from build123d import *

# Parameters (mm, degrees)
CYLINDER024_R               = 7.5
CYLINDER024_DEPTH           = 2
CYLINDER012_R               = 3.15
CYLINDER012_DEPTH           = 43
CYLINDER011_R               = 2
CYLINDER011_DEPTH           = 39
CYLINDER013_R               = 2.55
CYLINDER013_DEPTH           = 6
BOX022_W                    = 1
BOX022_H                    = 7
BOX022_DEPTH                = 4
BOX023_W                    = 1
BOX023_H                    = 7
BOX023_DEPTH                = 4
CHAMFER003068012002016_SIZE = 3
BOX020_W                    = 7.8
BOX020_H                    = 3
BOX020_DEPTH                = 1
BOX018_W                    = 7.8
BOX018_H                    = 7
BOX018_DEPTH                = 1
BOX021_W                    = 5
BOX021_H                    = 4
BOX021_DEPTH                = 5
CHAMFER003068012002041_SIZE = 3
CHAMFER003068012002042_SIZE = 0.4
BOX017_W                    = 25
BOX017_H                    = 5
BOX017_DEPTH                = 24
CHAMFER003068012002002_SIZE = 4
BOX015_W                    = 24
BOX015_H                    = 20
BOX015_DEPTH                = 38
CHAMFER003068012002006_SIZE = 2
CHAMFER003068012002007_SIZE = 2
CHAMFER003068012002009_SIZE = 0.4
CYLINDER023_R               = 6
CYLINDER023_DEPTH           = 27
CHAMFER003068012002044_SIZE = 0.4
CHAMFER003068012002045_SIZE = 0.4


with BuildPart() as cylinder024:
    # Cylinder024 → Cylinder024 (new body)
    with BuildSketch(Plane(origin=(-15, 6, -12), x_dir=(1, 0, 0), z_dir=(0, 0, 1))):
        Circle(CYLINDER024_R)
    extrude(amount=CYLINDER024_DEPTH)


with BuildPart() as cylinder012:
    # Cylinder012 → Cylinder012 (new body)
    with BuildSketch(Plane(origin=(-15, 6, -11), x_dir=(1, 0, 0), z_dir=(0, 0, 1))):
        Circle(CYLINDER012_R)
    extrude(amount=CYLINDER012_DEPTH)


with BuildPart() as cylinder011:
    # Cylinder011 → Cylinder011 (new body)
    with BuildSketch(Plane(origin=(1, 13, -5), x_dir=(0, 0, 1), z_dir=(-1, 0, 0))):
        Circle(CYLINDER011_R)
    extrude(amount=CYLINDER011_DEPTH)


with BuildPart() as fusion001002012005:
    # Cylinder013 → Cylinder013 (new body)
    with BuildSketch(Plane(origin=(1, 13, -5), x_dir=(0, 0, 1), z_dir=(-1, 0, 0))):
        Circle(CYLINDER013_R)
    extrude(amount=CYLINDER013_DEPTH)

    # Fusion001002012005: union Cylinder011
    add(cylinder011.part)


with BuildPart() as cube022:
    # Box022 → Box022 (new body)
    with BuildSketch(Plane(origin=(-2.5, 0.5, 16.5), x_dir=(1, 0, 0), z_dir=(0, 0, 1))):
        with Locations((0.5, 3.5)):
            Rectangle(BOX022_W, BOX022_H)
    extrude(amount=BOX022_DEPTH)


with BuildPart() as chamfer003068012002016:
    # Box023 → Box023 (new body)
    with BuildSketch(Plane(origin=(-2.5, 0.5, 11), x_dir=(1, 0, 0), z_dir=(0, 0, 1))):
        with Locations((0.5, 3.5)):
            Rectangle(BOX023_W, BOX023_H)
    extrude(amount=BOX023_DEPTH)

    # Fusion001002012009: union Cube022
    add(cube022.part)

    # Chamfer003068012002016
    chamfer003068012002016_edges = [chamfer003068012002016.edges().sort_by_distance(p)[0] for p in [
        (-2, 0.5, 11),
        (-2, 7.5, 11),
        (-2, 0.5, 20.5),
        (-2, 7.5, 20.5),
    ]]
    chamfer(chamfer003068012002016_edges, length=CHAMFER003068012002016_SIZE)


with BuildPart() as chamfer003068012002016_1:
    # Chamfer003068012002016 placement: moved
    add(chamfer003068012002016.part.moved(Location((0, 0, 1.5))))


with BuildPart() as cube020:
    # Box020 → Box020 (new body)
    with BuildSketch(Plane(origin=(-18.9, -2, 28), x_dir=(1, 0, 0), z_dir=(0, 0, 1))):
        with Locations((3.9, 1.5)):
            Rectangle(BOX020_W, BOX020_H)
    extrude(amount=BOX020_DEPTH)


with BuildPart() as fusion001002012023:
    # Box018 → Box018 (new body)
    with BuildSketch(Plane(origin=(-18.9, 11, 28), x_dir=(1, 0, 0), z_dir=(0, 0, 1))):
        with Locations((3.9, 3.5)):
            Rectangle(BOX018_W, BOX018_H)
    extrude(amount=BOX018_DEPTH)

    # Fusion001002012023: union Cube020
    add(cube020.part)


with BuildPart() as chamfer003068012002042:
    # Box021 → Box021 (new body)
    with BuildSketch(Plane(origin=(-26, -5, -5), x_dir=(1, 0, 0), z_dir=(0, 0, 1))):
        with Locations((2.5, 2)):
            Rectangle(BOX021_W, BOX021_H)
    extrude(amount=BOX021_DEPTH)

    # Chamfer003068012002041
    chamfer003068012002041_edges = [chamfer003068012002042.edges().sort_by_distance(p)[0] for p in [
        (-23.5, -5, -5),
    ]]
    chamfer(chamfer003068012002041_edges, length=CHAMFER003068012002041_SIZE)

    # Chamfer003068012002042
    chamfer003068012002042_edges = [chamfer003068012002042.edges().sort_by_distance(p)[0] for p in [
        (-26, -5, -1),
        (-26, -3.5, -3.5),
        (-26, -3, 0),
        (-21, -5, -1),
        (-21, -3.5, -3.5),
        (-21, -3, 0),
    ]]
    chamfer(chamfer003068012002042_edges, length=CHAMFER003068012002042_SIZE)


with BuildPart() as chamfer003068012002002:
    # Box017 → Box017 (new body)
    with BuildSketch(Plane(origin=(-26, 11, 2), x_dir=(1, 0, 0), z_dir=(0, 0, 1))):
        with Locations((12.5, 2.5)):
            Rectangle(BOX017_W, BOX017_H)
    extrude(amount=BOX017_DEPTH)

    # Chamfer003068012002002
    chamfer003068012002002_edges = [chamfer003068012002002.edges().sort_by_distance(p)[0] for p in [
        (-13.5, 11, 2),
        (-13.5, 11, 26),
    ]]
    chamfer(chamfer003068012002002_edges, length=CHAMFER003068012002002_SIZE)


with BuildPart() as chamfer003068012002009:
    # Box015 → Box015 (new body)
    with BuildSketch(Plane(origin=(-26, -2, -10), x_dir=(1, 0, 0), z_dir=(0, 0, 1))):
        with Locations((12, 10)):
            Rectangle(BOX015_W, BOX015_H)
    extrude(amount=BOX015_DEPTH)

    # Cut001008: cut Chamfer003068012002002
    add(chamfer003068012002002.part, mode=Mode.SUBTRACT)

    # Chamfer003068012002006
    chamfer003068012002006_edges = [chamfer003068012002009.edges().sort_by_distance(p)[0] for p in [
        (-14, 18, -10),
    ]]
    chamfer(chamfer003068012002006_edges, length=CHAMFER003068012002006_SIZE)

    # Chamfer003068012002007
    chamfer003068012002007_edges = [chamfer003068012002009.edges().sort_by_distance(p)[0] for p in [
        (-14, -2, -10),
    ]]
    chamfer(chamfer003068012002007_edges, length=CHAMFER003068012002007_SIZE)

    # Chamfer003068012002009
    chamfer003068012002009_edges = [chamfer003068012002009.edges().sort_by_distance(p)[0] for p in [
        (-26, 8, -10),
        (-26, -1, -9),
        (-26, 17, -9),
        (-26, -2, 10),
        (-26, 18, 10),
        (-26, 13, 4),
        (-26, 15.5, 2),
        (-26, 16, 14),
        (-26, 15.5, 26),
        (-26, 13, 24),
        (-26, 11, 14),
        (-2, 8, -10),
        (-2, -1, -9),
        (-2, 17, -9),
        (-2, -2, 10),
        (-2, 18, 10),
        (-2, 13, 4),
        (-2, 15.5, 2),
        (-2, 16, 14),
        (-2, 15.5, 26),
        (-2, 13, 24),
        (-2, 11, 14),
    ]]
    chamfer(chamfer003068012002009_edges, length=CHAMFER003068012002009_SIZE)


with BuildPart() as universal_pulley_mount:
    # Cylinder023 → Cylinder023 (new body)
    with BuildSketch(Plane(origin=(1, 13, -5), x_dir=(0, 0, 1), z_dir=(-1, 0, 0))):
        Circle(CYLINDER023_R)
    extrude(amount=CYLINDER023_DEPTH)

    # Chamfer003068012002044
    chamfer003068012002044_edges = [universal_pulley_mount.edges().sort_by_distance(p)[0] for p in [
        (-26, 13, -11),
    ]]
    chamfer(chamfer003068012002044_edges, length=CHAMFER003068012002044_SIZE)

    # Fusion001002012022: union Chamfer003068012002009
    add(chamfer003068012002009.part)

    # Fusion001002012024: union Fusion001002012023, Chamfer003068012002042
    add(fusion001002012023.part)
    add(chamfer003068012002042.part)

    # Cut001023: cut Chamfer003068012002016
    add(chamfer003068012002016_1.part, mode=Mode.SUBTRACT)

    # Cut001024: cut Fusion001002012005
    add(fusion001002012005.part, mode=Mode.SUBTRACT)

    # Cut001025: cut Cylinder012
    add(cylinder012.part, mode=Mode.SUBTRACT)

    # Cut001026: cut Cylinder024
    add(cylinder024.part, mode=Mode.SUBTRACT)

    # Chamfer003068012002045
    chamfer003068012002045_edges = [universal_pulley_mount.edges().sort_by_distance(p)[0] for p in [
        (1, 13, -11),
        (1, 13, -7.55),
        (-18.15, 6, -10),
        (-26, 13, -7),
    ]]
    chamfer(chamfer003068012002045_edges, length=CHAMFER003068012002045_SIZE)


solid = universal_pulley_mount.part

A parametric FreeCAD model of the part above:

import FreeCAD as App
import Part
import Sketcher

V = App.Vector
Q = App.Units.Quantity


def edges_at(feature, points):
    """Names of the edges that pass closest to the given points."""
    edges = feature.Shape.Edges
    near = lambda p: min(range(len(edges)), key=lambda i: edges[i].distToShape(Part.Vertex(*p))[0])
    return sorted({f"Edge{near(p) + 1}" for p in points})


def add_polygon(sketch, points):
    """Adds a closed chain of lines whose ends are joined by coincident constraints."""
    first, n = sketch.GeometryCount, len(points)
    for a, b in zip(points, points[1:] + points[:1]):
        sketch.addGeometry(Part.LineSegment(App.Vector(*a, 0), App.Vector(*b, 0)), False)
    for i in range(n):
        sketch.addConstraint(Sketcher.Constraint("Coincident", first + i, 2, first + (i + 1) % n, 1))

doc = App.newDocument("Part")
body = doc.addObject("PartDesign::Body", "Body")

# Sketch on XY plane
sketch1 = body.newObject("Sketcher::SketchObject", "Sketch")
sketch1.AttachmentSupport = (doc.getObject("XY_Plane"), [""])
sketch1.MapMode = "FlatFace"
sketch1.AttachmentOffset = App.Placement(V(0, 0, -12), App.Rotation())
sketch1.addGeometry(Part.Circle(V(-15, 6, 0), V(0, 0, 1), 8), False)
sketch1.addConstraint(Sketcher.Constraint("Diameter", 0, Q("15 mm")))
sketch1.addConstraint(Sketcher.Constraint("DistanceX", 0, 3, -1, 1, Q("15 mm")))
sketch1.addConstraint(Sketcher.Constraint("DistanceY", -1, 1, 0, 3, Q("6 mm")))
pad1 = body.newObject("PartDesign::Pad", "Pad")
pad1.Profile = sketch1
pad1.Length = 2
body2 = doc.addObject("PartDesign::Body", "Body001")

# Sketch on XY plane
sketch2 = body2.newObject("Sketcher::SketchObject", "Sketch001")
sketch2.AttachmentSupport = (doc.getObject("XY_Plane001"), [""])
sketch2.MapMode = "FlatFace"
sketch2.AttachmentOffset = App.Placement(V(0, 0, -11), App.Rotation())
sketch2.addGeometry(Part.Circle(V(-15, 6, 0), V(0, 0, 1), 3.1), False)
sketch2.addConstraint(Sketcher.Constraint("Diameter", 0, Q("6.3 mm")))
sketch2.addConstraint(Sketcher.Constraint("DistanceX", 0, 3, -1, 1, Q("15 mm")))
sketch2.addConstraint(Sketcher.Constraint("DistanceY", -1, 1, 0, 3, Q("6 mm")))
pad2 = body2.newObject("PartDesign::Pad", "Pad001")
pad2.Profile = sketch2
pad2.Length = 43
body3 = doc.addObject("PartDesign::Body", "Body002")

# Sketch on YZ plane
sketch3 = body3.newObject("Sketcher::SketchObject", "Sketch002")
sketch3.AttachmentSupport = (doc.getObject("YZ_Plane002"), [""])
sketch3.MapMode = "FlatFace"
sketch3.AttachmentOffset = App.Placement(V(0, 0, 1), App.Rotation())
sketch3.addGeometry(Part.Circle(V(13, -5, 0), V(0, 0, 1), 2), False)
sketch3.addConstraint(Sketcher.Constraint("Diameter", 0, Q("4 mm")))
sketch3.addConstraint(Sketcher.Constraint("DistanceX", -1, 1, 0, 3, Q("13 mm")))
sketch3.addConstraint(Sketcher.Constraint("DistanceY", 0, 3, -1, 1, Q("5 mm")))
pad3 = body3.newObject("PartDesign::Pad", "Pad002")
pad3.Profile = sketch3
pad3.Length = 39
pad3.Reversed = True
body4 = doc.addObject("PartDesign::Body", "Body003")

# Sketch on YZ plane
sketch4 = body4.newObject("Sketcher::SketchObject", "Sketch003")
sketch4.AttachmentSupport = (doc.getObject("YZ_Plane003"), [""])
sketch4.MapMode = "FlatFace"
sketch4.AttachmentOffset = App.Placement(V(0, 0, 1), App.Rotation())
sketch4.addGeometry(Part.Circle(V(13, -5, 0), V(0, 0, 1), 2.5), False)
sketch4.addConstraint(Sketcher.Constraint("Diameter", 0, Q("5.1 mm")))
sketch4.addConstraint(Sketcher.Constraint("DistanceX", -1, 1, 0, 3, Q("13 mm")))
sketch4.addConstraint(Sketcher.Constraint("DistanceY", 0, 3, -1, 1, Q("5 mm")))
pad4 = body4.newObject("PartDesign::Pad", "Pad003")
pad4.Profile = sketch4
pad4.Length = 6
pad4.Reversed = True
doc.recompute()

boolean = body4.newObject("PartDesign::Boolean", "Boolean")
boolean.Type = "Fuse"
boolean.addObjects([body3])
body5 = doc.addObject("PartDesign::Body", "Body004")

# Sketch on XY plane
sketch5 = body5.newObject("Sketcher::SketchObject", "Sketch004")
sketch5.AttachmentSupport = (doc.getObject("XY_Plane004"), [""])
sketch5.MapMode = "FlatFace"
sketch5.AttachmentOffset = App.Placement(V(0, 0, 16.5), App.Rotation())
add_polygon(sketch5, [(-2.5, 7.5), (-2.5, 0.5), (-1.5, 0.5), (-1.5, 7.5)])  # lines 0-3
sketch5.addConstraint(Sketcher.Constraint("Vertical", 0))
sketch5.addConstraint(Sketcher.Constraint("Horizontal", 1))
sketch5.addConstraint(Sketcher.Constraint("Vertical", 2))
sketch5.addConstraint(Sketcher.Constraint("Horizontal", 3))
sketch5.addConstraint(Sketcher.Constraint("DistanceX", 1, 1, 1, 2, Q("1 mm")))
sketch5.addConstraint(Sketcher.Constraint("DistanceY", 0, 2, 0, 1, Q("7 mm")))
sketch5.addConstraint(Sketcher.Constraint("DistanceX", 0, 2, -1, 1, Q("2.5 mm")))
sketch5.addConstraint(Sketcher.Constraint("DistanceY", -1, 1, 0, 2, Q("0.5 mm")))
pad5 = body5.newObject("PartDesign::Pad", "Pad004")
pad5.Profile = sketch5
pad5.Length = 4
body6 = doc.addObject("PartDesign::Body", "Body005")
body6.AllowCompound = True

# Sketch on XY plane
sketch6 = body6.newObject("Sketcher::SketchObject", "Sketch005")
sketch6.AttachmentSupport = (doc.getObject("XY_Plane005"), [""])
sketch6.MapMode = "FlatFace"
sketch6.AttachmentOffset = App.Placement(V(0, 0, 11), App.Rotation())
add_polygon(sketch6, [(-2.5, 7.5), (-2.5, 0.5), (-1.5, 0.5), (-1.5, 7.5)])  # lines 0-3
sketch6.addConstraint(Sketcher.Constraint("Vertical", 0))
sketch6.addConstraint(Sketcher.Constraint("Horizontal", 1))
sketch6.addConstraint(Sketcher.Constraint("Vertical", 2))
sketch6.addConstraint(Sketcher.Constraint("Horizontal", 3))
sketch6.addConstraint(Sketcher.Constraint("DistanceX", 1, 1, 1, 2, Q("1 mm")))
sketch6.addConstraint(Sketcher.Constraint("DistanceY", 0, 2, 0, 1, Q("7 mm")))
sketch6.addConstraint(Sketcher.Constraint("DistanceX", 0, 2, -1, 1, Q("2.5 mm")))
sketch6.addConstraint(Sketcher.Constraint("DistanceY", -1, 1, 0, 2, Q("0.5 mm")))
pad6 = body6.newObject("PartDesign::Pad", "Pad005")
pad6.Profile = sketch6
pad6.Length = 4
doc.recompute()

boolean2 = body6.newObject("PartDesign::Boolean", "Boolean001")
boolean2.Type = "Fuse"
boolean2.addObjects([body5])
doc.recompute()

chamfer = body6.newObject("PartDesign::Chamfer", "Chamfer")
chamfer.Base = (boolean2, edges_at(boolean2, [
    (-2, 0.5, 11),
    (-2, 7.5, 11),
    (-2, 0.5, 20.5),
    (-2, 7.5, 20.5),
]))
chamfer.Size = 3
body7 = doc.addObject("PartDesign::Body", "Body006")
body7.AllowCompound = True
doc.recompute()

body6.Placement = App.Placement(V(0, 0, 1.5), App.Rotation(V(0, 0, 1), 0))
boolean3 = body7.newObject("PartDesign::Boolean", "Boolean002")
boolean3.Type = "Fuse"
boolean3.addObjects([body6])
body8 = doc.addObject("PartDesign::Body", "Body007")

# Sketch on XY plane
sketch7 = body8.newObject("Sketcher::SketchObject", "Sketch006")
sketch7.AttachmentSupport = (doc.getObject("XY_Plane007"), [""])
sketch7.MapMode = "FlatFace"
sketch7.AttachmentOffset = App.Placement(V(0, 0, 28), App.Rotation())
add_polygon(sketch7, [(-18.9, 1), (-18.9, -2), (-11.1, -2), (-11.1, 1)])  # lines 0-3
sketch7.addConstraint(Sketcher.Constraint("Vertical", 0))
sketch7.addConstraint(Sketcher.Constraint("Horizontal", 1))
sketch7.addConstraint(Sketcher.Constraint("Vertical", 2))
sketch7.addConstraint(Sketcher.Constraint("Horizontal", 3))
sketch7.addConstraint(Sketcher.Constraint("DistanceY", 0, 2, 0, 1, Q("3 mm")))
sketch7.addConstraint(Sketcher.Constraint("DistanceX", 1, 1, 1, 2, Q("7.8 mm")))
sketch7.addConstraint(Sketcher.Constraint("DistanceY", 0, 2, -1, 1, Q("2 mm")))
sketch7.addConstraint(Sketcher.Constraint("DistanceX", 0, 2, -1, 1, Q("18.9 mm")))
pad7 = body8.newObject("PartDesign::Pad", "Pad006")
pad7.Profile = sketch7
pad7.Length = 1
body9 = doc.addObject("PartDesign::Body", "Body008")
body9.AllowCompound = True

# Sketch on XY plane
sketch8 = body9.newObject("Sketcher::SketchObject", "Sketch007")
sketch8.AttachmentSupport = (doc.getObject("XY_Plane008"), [""])
sketch8.MapMode = "FlatFace"
sketch8.AttachmentOffset = App.Placement(V(0, 0, 28), App.Rotation())
add_polygon(sketch8, [(-19, 18), (-19, 11), (-11, 11), (-11, 18)])  # lines 0-3
sketch8.addConstraint(Sketcher.Constraint("Vertical", 0))
sketch8.addConstraint(Sketcher.Constraint("Horizontal", 1))
sketch8.addConstraint(Sketcher.Constraint("Vertical", 2))
sketch8.addConstraint(Sketcher.Constraint("Horizontal", 3))
sketch8.addConstraint(Sketcher.Constraint("DistanceY", 0, 2, 0, 1, Q("7 mm")))
sketch8.addConstraint(Sketcher.Constraint("DistanceX", 1, 1, 1, 2, Q("7.8 mm")))
sketch8.addConstraint(Sketcher.Constraint("DistanceY", -1, 1, 0, 2, Q("11 mm")))
sketch8.addConstraint(Sketcher.Constraint("DistanceX", 0, 2, -1, 1, Q("18.9 mm")))
pad8 = body9.newObject("PartDesign::Pad", "Pad007")
pad8.Profile = sketch8
pad8.Length = 1
doc.recompute()

boolean4 = body9.newObject("PartDesign::Boolean", "Boolean003")
boolean4.Type = "Fuse"
boolean4.addObjects([body8])
body10 = doc.addObject("PartDesign::Body", "Body009")

# Sketch on XY plane
sketch9 = body10.newObject("Sketcher::SketchObject", "Sketch008")
sketch9.AttachmentSupport = (doc.getObject("XY_Plane009"), [""])
sketch9.MapMode = "FlatFace"
sketch9.AttachmentOffset = App.Placement(V(0, 0, -5), App.Rotation())
add_polygon(sketch9, [(-26, -1), (-26, -5), (-21, -5), (-21, -1)])  # lines 0-3
sketch9.addConstraint(Sketcher.Constraint("Vertical", 0))
sketch9.addConstraint(Sketcher.Constraint("Horizontal", 1))
sketch9.addConstraint(Sketcher.Constraint("Vertical", 2))
sketch9.addConstraint(Sketcher.Constraint("Horizontal", 3))
sketch9.addConstraint(Sketcher.Constraint("DistanceX", 1, 1, 1, 2, Q("5 mm")))
sketch9.addConstraint(Sketcher.Constraint("DistanceY", 0, 2, 0, 1, Q("4 mm")))
sketch9.addConstraint(Sketcher.Constraint("DistanceX", 0, 2, -1, 1, Q("26 mm")))
sketch9.addConstraint(Sketcher.Constraint("DistanceY", 0, 2, -1, 1, Q("5 mm")))
pad9 = body10.newObject("PartDesign::Pad", "Pad008")
pad9.Profile = sketch9
pad9.Length = 5
doc.recompute()

chamfer2 = body10.newObject("PartDesign::Chamfer", "Chamfer001")
chamfer2.Base = (pad9, edges_at(pad9, [(-23.5, -5, -5)]))
chamfer2.Size = 3
doc.recompute()

chamfer3 = body10.newObject("PartDesign::Chamfer", "Chamfer002")
chamfer3.Base = (chamfer2, edges_at(chamfer2, [
    (-26, -5, -1),
    (-26, -3.5, -3.5),
    (-26, -3, 0),
    (-21, -5, -1),
    (-21, -3.5, -3.5),
    (-21, -3, 0),
]))
chamfer3.Size = 0.4
body11 = doc.addObject("PartDesign::Body", "Body010")

# Sketch on XY plane
sketch10 = body11.newObject("Sketcher::SketchObject", "Sketch009")
sketch10.AttachmentSupport = (doc.getObject("XY_Plane010"), [""])
sketch10.MapMode = "FlatFace"
sketch10.AttachmentOffset = App.Placement(V(0, 0, 2), App.Rotation())
add_polygon(sketch10, [(-26, 16), (-26, 11), (-1, 11), (-1, 16)])  # lines 0-3
sketch10.addConstraint(Sketcher.Constraint("Vertical", 0))
sketch10.addConstraint(Sketcher.Constraint("Horizontal", 1))
sketch10.addConstraint(Sketcher.Constraint("Vertical", 2))
sketch10.addConstraint(Sketcher.Constraint("Horizontal", 3))
sketch10.addConstraint(Sketcher.Constraint("DistanceX", 1, 1, 1, 2, Q("25 mm")))
sketch10.addConstraint(Sketcher.Constraint("DistanceY", 0, 2, 0, 1, Q("5 mm")))
sketch10.addConstraint(Sketcher.Constraint("DistanceX", 0, 2, -1, 1, Q("26 mm")))
sketch10.addConstraint(Sketcher.Constraint("DistanceY", -1, 1, 0, 2, Q("11 mm")))
pad10 = body11.newObject("PartDesign::Pad", "Pad009")
pad10.Profile = sketch10
pad10.Length = 24
doc.recompute()

chamfer4 = body11.newObject("PartDesign::Chamfer", "Chamfer003")
chamfer4.Base = (pad10, edges_at(pad10, [(-13.5, 11, 2), (-13.5, 11, 26)]))
chamfer4.Size = 4
body12 = doc.addObject("PartDesign::Body", "Body011")

# Sketch on XY plane
sketch11 = body12.newObject("Sketcher::SketchObject", "Sketch010")
sketch11.AttachmentSupport = (doc.getObject("XY_Plane011"), [""])
sketch11.MapMode = "FlatFace"
sketch11.AttachmentOffset = App.Placement(V(0, 0, -10), App.Rotation())
add_polygon(sketch11, [(-26, 18), (-26, -2), (-2, -2), (-2, 18)])  # lines 0-3
sketch11.addConstraint(Sketcher.Constraint("Vertical", 0))
sketch11.addConstraint(Sketcher.Constraint("Horizontal", 1))
sketch11.addConstraint(Sketcher.Constraint("Vertical", 2))
sketch11.addConstraint(Sketcher.Constraint("Horizontal", 3))
sketch11.addConstraint(Sketcher.Constraint("DistanceX", 1, 1, 1, 2, Q("24 mm")))
sketch11.addConstraint(Sketcher.Constraint("DistanceY", 0, 2, 0, 1, Q("20 mm")))
sketch11.addConstraint(Sketcher.Constraint("DistanceX", 0, 2, -1, 1, Q("26 mm")))
sketch11.addConstraint(Sketcher.Constraint("DistanceY", 0, 2, -1, 1, Q("2 mm")))
pad11 = body12.newObject("PartDesign::Pad", "Pad010")
pad11.Profile = sketch11
pad11.Length = 38
doc.recompute()

boolean5 = body12.newObject("PartDesign::Boolean", "Boolean004")
boolean5.Type = "Cut"
boolean5.addObjects([body11])
doc.recompute()

chamfer5 = body12.newObject("PartDesign::Chamfer", "Chamfer004")
chamfer5.Base = (boolean5, edges_at(boolean5, [(-14, 18, -10)]))
chamfer5.Size = 2
doc.recompute()

chamfer6 = body12.newObject("PartDesign::Chamfer", "Chamfer005")
chamfer6.Base = (chamfer5, edges_at(chamfer5, [(-14, -2, -10)]))
chamfer6.Size = 2
doc.recompute()

chamfer7 = body12.newObject("PartDesign::Chamfer", "Chamfer006")
chamfer7.Base = (chamfer6, edges_at(chamfer6, [
    (-26, 8, -10),
    (-26, -1, -9),
    (-26, 17, -9),
    (-26, -2, 10),
    (-26, 18, 10),
    (-26, 13, 4),
    (-26, 15.5, 2),
    (-26, 16, 14),
    (-26, 15.5, 26),
    (-26, 13, 24),
    (-26, 11, 14),
    (-2, 8, -10),
    (-2, -1, -9),
    (-2, 17, -9),
    (-2, -2, 10),
    (-2, 18, 10),
    (-2, 13, 4),
    (-2, 15.5, 2),
    (-2, 16, 14),
    (-2, 15.5, 26),
    (-2, 13, 24),
    (-2, 11, 14),
]))
chamfer7.Size = 0.4
body13 = doc.addObject("PartDesign::Body", "Body012")

# Sketch on YZ plane
sketch12 = body13.newObject("Sketcher::SketchObject", "Sketch011")
sketch12.AttachmentSupport = (doc.getObject("YZ_Plane012"), [""])
sketch12.MapMode = "FlatFace"
sketch12.AttachmentOffset = App.Placement(V(0, 0, 1), App.Rotation())
sketch12.addGeometry(Part.Circle(V(13, -5, 0), V(0, 0, 1), 6), False)
sketch12.addConstraint(Sketcher.Constraint("Diameter", 0, Q("12 mm")))
sketch12.addConstraint(Sketcher.Constraint("DistanceX", -1, 1, 0, 3, Q("13 mm")))
sketch12.addConstraint(Sketcher.Constraint("DistanceY", 0, 3, -1, 1, Q("5 mm")))
pad12 = body13.newObject("PartDesign::Pad", "Pad011")
pad12.Profile = sketch12
pad12.Length = 27
pad12.Reversed = True
doc.recompute()

chamfer8 = body13.newObject("PartDesign::Chamfer", "Chamfer007")
chamfer8.Base = (pad12, edges_at(pad12, [(-26, 13, -11)]))
chamfer8.Size = 0.4
doc.recompute()

boolean6 = body13.newObject("PartDesign::Boolean", "Boolean005")
boolean6.Type = "Fuse"
boolean6.addObjects([body12])
doc.recompute()

boolean7 = body13.newObject("PartDesign::Boolean", "Boolean006")
boolean7.Type = "Fuse"
boolean7.addObjects([body9])
doc.recompute()

boolean8 = body13.newObject("PartDesign::Boolean", "Boolean007")
boolean8.Type = "Fuse"
boolean8.addObjects([body10])
doc.recompute()

boolean9 = body13.newObject("PartDesign::Boolean", "Boolean008")
boolean9.Type = "Cut"
boolean9.addObjects([body7])
doc.recompute()

boolean10 = body13.newObject("PartDesign::Boolean", "Boolean009")
boolean10.Type = "Cut"
boolean10.addObjects([body4])
doc.recompute()

boolean11 = body13.newObject("PartDesign::Boolean", "Boolean010")
boolean11.Type = "Cut"
boolean11.addObjects([body2])
doc.recompute()

boolean12 = body13.newObject("PartDesign::Boolean", "Boolean011")
boolean12.Type = "Cut"
boolean12.addObjects([body])
doc.recompute()

chamfer9 = body13.newObject("PartDesign::Chamfer", "Chamfer008")
chamfer9.Base = (boolean12, edges_at(boolean12, [
    (1, 13, -11),
    (1, 13, -7.55),
    (-18.15, 6, -10),
    (-26, 13, -7),
]))
chamfer9.Size = 0.4

doc.recompute()
